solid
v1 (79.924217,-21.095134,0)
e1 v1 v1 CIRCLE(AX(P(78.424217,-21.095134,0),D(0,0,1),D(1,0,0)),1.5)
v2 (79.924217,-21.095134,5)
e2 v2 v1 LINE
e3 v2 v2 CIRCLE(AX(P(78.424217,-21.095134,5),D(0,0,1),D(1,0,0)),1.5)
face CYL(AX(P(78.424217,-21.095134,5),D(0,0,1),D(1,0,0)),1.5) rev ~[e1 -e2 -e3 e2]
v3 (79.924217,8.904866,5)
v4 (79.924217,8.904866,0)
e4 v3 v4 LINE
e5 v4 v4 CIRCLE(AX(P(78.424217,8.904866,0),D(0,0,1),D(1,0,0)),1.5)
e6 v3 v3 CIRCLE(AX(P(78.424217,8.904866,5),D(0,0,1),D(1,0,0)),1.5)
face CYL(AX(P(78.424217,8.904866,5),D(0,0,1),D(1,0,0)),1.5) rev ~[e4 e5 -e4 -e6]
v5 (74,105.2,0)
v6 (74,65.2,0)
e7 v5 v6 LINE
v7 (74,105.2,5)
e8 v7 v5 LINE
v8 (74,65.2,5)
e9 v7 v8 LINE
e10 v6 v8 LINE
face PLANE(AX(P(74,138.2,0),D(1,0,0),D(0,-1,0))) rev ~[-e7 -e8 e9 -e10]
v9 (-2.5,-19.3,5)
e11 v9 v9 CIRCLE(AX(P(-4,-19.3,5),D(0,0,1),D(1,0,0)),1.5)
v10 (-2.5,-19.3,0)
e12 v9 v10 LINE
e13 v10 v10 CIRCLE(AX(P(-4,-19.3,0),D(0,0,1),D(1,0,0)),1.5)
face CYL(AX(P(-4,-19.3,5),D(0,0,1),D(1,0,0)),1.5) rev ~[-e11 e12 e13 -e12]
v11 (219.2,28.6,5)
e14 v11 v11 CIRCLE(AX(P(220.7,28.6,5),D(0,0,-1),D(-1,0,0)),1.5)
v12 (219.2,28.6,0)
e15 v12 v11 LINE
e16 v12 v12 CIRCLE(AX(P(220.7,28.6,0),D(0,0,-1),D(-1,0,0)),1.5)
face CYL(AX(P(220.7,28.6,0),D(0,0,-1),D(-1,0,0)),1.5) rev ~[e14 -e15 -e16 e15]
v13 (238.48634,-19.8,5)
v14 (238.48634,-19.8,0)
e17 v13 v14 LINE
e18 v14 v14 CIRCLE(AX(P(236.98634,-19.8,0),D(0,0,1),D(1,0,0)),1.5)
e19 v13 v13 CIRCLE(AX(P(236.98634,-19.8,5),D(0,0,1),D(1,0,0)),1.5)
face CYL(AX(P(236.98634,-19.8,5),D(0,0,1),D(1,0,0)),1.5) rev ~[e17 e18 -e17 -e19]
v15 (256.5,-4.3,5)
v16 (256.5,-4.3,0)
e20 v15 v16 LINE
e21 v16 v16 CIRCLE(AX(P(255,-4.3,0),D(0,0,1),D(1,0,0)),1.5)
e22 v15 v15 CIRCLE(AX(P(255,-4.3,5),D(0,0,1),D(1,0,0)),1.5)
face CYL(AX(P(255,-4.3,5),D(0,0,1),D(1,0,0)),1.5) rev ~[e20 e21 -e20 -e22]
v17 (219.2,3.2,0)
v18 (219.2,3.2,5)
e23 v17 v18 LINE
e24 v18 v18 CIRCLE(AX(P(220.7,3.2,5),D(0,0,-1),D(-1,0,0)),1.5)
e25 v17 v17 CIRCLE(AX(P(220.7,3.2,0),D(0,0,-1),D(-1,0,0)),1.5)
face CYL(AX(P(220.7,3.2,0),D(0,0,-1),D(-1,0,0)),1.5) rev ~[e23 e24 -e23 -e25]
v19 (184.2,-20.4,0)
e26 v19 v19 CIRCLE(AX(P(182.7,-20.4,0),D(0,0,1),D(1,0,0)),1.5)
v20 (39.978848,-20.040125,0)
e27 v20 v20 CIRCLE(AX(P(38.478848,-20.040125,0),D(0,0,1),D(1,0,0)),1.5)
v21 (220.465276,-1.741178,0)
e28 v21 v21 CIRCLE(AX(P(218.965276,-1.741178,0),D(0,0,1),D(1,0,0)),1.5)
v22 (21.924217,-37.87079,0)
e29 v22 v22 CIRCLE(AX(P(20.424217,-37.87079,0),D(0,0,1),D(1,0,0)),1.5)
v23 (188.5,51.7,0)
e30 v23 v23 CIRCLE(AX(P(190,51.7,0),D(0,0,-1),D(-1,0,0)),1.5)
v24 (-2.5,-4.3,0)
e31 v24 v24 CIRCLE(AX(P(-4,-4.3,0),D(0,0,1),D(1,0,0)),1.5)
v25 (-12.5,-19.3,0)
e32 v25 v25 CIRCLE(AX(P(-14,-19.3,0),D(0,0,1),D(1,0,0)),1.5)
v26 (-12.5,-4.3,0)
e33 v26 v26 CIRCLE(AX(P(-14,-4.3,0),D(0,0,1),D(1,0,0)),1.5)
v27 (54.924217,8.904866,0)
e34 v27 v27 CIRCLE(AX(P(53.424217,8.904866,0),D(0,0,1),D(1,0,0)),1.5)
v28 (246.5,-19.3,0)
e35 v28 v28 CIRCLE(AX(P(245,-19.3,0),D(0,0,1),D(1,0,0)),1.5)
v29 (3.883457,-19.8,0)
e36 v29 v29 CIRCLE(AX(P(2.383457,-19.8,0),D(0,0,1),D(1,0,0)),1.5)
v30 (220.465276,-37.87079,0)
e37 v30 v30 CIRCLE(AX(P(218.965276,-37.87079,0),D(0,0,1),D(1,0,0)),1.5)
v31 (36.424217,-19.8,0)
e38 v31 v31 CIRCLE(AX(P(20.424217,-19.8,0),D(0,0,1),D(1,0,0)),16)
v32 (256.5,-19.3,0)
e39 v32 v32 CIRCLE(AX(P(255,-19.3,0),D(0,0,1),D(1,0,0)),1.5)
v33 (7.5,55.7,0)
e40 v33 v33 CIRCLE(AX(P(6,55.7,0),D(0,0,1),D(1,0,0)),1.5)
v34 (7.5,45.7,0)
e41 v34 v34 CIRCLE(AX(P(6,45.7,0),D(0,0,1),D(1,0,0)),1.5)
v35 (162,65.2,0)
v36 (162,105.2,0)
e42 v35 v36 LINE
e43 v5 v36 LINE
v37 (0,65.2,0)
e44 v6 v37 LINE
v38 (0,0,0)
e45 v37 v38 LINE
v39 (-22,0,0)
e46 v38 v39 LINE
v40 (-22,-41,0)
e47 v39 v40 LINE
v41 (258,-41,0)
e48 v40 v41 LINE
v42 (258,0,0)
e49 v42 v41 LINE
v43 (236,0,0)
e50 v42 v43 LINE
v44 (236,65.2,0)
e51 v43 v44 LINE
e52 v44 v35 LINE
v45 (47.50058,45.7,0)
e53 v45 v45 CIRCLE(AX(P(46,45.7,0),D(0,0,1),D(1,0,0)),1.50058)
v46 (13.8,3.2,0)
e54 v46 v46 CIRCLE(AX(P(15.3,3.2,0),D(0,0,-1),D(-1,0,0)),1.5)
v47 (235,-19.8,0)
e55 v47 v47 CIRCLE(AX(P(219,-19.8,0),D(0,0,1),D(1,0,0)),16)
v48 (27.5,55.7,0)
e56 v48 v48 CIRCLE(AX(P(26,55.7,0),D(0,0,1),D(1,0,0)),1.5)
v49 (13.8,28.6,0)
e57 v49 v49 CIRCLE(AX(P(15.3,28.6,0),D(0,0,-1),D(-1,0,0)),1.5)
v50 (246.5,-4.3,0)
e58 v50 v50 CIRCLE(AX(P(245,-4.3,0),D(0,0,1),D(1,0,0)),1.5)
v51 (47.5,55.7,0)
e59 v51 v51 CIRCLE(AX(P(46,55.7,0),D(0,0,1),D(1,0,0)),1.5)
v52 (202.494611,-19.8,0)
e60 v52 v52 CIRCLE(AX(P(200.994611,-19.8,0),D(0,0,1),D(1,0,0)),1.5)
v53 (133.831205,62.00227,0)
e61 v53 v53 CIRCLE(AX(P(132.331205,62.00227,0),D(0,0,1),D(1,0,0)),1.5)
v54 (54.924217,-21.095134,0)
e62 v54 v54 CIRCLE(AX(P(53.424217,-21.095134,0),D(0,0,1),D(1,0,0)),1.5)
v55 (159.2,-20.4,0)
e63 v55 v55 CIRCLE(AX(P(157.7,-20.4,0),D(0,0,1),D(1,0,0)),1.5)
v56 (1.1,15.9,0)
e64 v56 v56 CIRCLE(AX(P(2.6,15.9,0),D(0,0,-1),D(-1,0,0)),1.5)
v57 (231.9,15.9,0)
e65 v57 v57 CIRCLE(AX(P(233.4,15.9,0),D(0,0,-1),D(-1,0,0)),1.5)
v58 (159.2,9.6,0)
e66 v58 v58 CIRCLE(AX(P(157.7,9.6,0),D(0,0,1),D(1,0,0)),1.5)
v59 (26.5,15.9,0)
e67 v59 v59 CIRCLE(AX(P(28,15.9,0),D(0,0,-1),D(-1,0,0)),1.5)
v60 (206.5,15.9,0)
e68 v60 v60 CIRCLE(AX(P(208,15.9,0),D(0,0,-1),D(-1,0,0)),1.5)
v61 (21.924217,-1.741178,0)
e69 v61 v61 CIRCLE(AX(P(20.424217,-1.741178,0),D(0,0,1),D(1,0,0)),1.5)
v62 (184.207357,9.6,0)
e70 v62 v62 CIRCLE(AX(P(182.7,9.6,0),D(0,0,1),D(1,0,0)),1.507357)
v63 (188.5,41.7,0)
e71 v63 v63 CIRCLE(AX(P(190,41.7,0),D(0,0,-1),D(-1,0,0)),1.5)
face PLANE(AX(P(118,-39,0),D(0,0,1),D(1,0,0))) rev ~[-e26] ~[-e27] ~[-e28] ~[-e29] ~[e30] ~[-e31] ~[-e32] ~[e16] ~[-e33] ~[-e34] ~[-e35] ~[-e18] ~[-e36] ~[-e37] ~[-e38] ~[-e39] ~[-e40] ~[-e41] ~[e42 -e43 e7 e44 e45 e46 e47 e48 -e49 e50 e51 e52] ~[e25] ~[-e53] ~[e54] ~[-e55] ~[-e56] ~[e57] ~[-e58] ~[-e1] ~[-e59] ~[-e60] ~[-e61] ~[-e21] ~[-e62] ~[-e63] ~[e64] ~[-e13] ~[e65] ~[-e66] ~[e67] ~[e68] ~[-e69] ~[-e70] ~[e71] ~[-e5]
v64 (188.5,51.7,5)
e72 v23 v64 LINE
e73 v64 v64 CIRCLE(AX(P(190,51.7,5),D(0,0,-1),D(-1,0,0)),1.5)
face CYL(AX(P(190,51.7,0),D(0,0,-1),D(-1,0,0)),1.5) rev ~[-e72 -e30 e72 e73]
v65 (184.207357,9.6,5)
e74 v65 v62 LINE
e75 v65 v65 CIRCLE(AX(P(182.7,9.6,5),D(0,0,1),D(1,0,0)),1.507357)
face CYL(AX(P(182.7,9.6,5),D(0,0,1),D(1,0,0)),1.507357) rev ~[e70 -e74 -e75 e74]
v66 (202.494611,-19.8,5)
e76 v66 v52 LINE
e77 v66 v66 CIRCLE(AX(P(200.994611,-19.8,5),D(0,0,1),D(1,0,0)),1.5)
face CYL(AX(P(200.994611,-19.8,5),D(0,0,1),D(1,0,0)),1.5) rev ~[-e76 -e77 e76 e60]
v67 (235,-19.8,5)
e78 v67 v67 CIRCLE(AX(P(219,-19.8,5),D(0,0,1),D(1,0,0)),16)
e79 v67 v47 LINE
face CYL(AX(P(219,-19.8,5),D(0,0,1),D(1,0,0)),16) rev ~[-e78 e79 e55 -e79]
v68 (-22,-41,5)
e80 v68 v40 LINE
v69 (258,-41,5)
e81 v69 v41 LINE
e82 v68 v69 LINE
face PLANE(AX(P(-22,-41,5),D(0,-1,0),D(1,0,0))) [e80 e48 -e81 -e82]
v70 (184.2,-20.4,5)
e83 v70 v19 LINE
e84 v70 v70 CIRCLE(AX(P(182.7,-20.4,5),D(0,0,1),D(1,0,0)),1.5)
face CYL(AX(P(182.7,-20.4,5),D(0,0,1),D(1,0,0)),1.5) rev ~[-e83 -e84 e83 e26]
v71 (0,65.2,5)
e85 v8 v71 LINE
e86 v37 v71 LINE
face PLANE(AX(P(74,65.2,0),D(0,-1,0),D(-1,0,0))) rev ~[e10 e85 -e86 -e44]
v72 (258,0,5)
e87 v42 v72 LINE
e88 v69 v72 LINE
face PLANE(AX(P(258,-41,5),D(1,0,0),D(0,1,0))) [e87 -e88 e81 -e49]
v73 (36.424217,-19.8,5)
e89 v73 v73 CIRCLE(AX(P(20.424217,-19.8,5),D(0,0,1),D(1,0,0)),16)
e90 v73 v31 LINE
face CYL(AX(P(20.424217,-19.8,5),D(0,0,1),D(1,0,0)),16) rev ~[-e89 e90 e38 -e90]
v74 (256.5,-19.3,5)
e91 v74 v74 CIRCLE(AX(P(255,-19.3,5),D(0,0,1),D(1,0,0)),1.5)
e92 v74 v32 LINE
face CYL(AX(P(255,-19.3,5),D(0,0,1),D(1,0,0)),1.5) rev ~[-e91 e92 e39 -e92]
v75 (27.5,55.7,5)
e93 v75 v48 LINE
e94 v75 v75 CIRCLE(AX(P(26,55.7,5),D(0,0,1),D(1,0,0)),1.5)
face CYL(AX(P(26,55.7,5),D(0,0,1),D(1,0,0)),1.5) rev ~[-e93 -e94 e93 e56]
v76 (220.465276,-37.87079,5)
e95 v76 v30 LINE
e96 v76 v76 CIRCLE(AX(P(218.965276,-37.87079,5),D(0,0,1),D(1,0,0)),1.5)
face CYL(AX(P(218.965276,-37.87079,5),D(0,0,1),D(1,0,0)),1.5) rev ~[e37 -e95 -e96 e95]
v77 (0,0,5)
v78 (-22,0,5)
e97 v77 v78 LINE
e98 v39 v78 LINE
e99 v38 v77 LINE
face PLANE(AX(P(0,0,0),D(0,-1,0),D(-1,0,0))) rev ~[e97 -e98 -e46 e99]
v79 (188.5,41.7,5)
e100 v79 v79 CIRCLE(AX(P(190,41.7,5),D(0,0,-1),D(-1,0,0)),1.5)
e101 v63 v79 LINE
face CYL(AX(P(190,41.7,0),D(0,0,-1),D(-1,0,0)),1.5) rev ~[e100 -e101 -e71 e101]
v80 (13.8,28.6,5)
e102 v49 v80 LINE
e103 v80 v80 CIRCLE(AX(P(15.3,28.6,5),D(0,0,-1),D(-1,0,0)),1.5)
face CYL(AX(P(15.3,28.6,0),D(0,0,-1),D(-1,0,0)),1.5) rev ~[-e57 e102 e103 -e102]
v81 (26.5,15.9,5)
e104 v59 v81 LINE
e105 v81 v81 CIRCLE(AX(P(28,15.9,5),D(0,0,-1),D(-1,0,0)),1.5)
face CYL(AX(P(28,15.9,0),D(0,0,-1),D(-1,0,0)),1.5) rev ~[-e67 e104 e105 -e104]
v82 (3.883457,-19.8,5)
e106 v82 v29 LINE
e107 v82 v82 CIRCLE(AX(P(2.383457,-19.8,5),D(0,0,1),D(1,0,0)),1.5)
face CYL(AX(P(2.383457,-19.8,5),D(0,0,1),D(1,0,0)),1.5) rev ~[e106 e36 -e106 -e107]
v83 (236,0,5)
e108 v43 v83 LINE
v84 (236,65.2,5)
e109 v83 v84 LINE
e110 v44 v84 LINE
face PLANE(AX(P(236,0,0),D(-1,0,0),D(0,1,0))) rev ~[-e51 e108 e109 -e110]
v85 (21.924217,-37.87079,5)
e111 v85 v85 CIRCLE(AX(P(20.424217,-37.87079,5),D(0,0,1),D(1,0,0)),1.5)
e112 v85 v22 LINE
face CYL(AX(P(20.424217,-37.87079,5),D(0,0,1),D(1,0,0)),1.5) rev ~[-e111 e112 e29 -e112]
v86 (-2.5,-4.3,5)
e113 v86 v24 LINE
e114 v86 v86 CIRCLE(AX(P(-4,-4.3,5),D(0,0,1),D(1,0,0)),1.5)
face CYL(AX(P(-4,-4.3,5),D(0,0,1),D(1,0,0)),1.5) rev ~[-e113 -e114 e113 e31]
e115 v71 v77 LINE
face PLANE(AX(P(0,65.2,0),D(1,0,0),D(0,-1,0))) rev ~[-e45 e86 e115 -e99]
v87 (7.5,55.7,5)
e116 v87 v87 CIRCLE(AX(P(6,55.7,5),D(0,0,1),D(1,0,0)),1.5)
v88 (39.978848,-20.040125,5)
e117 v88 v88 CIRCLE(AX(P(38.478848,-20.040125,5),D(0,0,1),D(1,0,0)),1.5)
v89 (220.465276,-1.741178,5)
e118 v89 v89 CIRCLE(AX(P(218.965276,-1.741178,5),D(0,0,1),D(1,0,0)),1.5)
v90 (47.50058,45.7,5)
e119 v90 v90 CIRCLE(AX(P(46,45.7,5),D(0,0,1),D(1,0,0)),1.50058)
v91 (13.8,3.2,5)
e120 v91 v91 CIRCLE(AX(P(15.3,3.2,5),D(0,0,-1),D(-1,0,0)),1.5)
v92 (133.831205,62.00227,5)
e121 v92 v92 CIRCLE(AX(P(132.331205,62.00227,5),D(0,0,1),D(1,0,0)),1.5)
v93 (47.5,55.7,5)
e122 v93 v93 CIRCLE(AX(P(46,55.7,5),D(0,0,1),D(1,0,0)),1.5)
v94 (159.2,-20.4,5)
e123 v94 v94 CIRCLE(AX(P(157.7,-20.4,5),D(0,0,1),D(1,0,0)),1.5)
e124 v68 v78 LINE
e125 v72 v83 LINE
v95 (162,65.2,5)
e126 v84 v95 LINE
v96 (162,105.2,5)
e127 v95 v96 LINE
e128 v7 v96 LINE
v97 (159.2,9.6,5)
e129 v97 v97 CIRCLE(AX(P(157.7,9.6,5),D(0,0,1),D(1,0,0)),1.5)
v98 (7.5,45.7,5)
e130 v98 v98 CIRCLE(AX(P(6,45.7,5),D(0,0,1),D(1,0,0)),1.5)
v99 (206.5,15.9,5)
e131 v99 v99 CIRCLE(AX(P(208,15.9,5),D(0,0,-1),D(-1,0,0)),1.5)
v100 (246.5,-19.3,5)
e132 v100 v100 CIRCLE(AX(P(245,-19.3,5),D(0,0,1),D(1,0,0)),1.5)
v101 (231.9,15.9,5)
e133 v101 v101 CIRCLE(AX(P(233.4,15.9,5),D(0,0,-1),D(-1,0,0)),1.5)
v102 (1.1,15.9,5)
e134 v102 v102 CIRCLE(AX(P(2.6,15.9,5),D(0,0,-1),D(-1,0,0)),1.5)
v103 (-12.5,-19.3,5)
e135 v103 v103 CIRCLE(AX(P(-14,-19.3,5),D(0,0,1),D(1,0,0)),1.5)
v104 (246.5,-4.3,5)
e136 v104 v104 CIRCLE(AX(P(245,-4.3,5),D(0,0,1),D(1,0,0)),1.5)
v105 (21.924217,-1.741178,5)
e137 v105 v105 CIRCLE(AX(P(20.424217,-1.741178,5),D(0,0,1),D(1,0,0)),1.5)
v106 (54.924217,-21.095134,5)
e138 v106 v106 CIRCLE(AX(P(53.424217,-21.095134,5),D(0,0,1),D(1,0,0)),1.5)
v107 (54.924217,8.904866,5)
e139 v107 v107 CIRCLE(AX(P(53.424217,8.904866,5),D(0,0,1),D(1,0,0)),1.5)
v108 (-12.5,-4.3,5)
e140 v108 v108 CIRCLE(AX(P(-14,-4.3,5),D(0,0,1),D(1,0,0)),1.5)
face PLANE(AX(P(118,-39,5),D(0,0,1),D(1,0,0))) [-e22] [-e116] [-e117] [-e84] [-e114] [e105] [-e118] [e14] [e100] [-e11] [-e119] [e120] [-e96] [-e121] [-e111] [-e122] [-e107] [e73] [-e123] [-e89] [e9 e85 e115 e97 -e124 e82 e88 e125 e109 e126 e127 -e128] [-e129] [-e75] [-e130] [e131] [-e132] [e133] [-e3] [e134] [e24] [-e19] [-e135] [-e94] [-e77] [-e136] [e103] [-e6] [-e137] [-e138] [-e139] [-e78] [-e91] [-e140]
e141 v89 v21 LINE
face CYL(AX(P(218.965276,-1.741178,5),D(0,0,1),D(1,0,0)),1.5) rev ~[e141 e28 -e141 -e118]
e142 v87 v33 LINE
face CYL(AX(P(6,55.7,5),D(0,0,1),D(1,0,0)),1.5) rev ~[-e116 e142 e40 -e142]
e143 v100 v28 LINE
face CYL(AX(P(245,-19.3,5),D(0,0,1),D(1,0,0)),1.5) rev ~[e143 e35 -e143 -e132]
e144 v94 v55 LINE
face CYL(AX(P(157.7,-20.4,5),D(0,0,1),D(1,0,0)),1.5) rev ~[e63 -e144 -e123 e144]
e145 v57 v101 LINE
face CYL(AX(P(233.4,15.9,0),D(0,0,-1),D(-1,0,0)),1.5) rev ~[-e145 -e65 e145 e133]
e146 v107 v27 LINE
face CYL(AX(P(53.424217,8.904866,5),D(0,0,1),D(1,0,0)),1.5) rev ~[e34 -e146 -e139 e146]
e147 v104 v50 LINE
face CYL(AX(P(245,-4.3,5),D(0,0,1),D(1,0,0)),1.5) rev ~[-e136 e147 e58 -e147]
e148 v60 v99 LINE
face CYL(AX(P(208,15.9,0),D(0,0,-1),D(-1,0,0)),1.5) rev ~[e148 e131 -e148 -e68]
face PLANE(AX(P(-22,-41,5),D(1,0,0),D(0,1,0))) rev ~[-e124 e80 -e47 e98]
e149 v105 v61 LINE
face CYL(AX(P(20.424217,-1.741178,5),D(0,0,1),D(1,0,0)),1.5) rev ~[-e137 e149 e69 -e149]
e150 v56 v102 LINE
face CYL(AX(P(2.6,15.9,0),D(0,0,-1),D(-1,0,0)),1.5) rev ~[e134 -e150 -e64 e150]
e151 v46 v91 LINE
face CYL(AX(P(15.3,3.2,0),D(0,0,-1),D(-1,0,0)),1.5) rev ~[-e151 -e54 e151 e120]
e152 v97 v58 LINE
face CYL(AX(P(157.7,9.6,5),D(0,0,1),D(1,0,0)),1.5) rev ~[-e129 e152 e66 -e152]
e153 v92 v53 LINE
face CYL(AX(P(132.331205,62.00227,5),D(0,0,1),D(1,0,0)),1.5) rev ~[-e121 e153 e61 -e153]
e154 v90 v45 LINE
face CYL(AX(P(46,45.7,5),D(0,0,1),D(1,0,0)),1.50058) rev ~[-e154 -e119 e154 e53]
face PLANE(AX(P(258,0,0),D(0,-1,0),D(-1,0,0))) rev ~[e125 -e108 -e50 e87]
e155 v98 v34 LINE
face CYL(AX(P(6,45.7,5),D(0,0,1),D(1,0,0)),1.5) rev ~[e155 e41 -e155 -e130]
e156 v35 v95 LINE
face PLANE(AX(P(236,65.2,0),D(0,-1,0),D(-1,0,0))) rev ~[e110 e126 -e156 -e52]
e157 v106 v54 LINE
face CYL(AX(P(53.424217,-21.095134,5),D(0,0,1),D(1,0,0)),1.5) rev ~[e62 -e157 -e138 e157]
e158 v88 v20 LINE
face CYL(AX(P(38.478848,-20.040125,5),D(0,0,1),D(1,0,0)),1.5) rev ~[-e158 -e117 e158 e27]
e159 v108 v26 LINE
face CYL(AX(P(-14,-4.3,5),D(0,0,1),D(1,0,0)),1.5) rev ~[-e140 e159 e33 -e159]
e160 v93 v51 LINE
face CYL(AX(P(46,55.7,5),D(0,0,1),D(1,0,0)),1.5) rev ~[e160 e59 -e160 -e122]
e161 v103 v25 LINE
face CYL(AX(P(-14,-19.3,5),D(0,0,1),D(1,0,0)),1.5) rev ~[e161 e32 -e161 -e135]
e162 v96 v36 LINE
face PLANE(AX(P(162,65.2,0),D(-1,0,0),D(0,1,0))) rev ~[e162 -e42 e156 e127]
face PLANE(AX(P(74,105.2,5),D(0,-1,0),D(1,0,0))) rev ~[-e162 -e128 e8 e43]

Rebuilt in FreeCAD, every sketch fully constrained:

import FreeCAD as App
import Part
import Sketcher


def add_polygon(sketch, points):
    """Adds a closed chain of lines whose ends are joined by coincident constraints."""
    first, n = sketch.GeometryCount, len(points)
    for a, b in zip(points, points[1:] + points[:1]):
        sketch.addGeometry(Part.LineSegment(App.Vector(*a, 0), App.Vector(*b, 0)), False)
    for i in range(n):
        sketch.addConstraint(Sketcher.Constraint("Coincident", first + i, 2, first + (i + 1) % n, 1))

doc = App.newDocument("Part")
params = doc.addObject("Spreadsheet::Sheet", "Params")
for row, (alias, value) in enumerate([
    ("sketch1_width", "280 mm"),
    ("sketch1_width2", "22 mm"),
    ("sketch1_width3", "74 mm"),
    ("sketch1_height", "37 mm"),
    ("sketch1_height2", "73 mm"),
    ("pad1_length", "5 mm"),
    ("sketch2_diameter", "3 mm"),
    ("pocket1_length", "14 mm"),
    ("sketch3_diameter", "3 mm"),
    ("pocket2_length", "32 mm"),
    ("sketch4_diameter", "3 mm"),
    ("sketch6_diameter", "3 mm"),
    ("sketch7_diameter", "3 mm"),
    ("sketch8_width", "88 mm"),
    ("sketch8_height", "33 mm"),
    ("sketch9_diameter", "3 mm"),
    ("sketch10_width", "280 mm"),
    ("sketch10_height", "4 mm"),
    ("pad2_length", "5 mm"),
    ("sketch11_diameter", "32 mm"),
    ("sketch12_diameter", "3 mm"),
], start=1):
    params.set(f"A{row}", alias)
    params.set(f"B{row}", "=" + value)
    params.setAlias(f"B{row}", alias)

body = doc.addObject("PartDesign::Body", "Body")

# Sketch on XY plane
sketch1 = doc.addObject("Sketcher::SketchObject", "Sketch")
body.addObject(sketch1)
sketch1.AttachmentSupport = (doc.XY_Plane, [""])
sketch1.MapMode = "FlatFace"
add_polygon(sketch1, [(-22, -37), (258, -37), (258, 0), (236, 0), (236, 65), (162, 65), (162, 138), (74, 138), (74, 65), (0, 65), (0, 0), (-22, 0)])  # lines 0-11
sketch1.addConstraint(Sketcher.Constraint("Horizontal", 0))
sketch1.addConstraint(Sketcher.Constraint("Vertical", 1))
sketch1.addConstraint(Sketcher.Constraint("Horizontal", 2))
sketch1.addConstraint(Sketcher.Constraint("Vertical", 3))
sketch1.addConstraint(Sketcher.Constraint("Horizontal", 4))
sketch1.addConstraint(Sketcher.Constraint("Vertical", 5))
sketch1.addConstraint(Sketcher.Constraint("Horizontal", 6))
sketch1.addConstraint(Sketcher.Constraint("Vertical", 7))
sketch1.addConstraint(Sketcher.Constraint("Horizontal", 8))
sketch1.addConstraint(Sketcher.Constraint("Vertical", 9))
sketch1.addConstraint(Sketcher.Constraint("Horizontal", 10))
sketch1.addConstraint(Sketcher.Constraint("Vertical", 11))
sketch1.addConstraint(Sketcher.Constraint("Coincident", 9, 2, -1, 1))
sketch1.addConstraint(Sketcher.Constraint("PointOnObject", 1, 2, -1))
sketch1.addConstraint(Sketcher.Constraint("Horizontal", 4, 2, 7, 2))
sketch1.addConstraint(Sketcher.Constraint("Equal", 4, 8))
sketch1.addConstraint(Sketcher.Constraint("Equal", 2, 10))
sketch1.addConstraint(Sketcher.Constraint("DistanceX", 0, 1, 0, 2, 280.0))
sketch1.addConstraint(Sketcher.Constraint("DistanceX", 2, 2, 2, 1, 22.0))
sketch1.addConstraint(Sketcher.Constraint("DistanceX", 4, 2, 4, 1, 74.0))
sketch1.addConstraint(Sketcher.Constraint("DistanceY", 1, 1, 1, 2, 37.0))
sketch1.addConstraint(Sketcher.Constraint("DistanceY", 5, 1, 5, 2, 73.0))
sketch1.addConstraint(Sketcher.Constraint("DistanceY", 3, 1, 3, 2, 65.2))
sketch1.setExpression("Constraints[29]", "Params.sketch1_width")
sketch1.setExpression("Constraints[30]", "Params.sketch1_width2")
sketch1.setExpression("Constraints[31]", "Params.sketch1_width3")
sketch1.setExpression("Constraints[32]", "Params.sketch1_height")
sketch1.setExpression("Constraints[33]", "Params.sketch1_height2")
pad1 = doc.addObject("PartDesign::Pad", "Pad")
body.addObject(pad1)
pad1.Profile = sketch1
pad1.setExpression("Length", "Params.pad1_length")

# Sketch on XY plane
sketch2 = doc.addObject("Sketcher::SketchObject", "Sketch001")
body.addObject(sketch2)
sketch2.AttachmentSupport = (doc.XY_Plane, [""])
sketch2.MapMode = "FlatFace"
sketch2.AttachmentOffset = App.Placement(App.Vector(0, 0, 5), App.Rotation())
sketch2.addGeometry(Part.Circle(App.Vector(26, 55.7, 0), App.Vector(0, 0, 1), 1.5), False)
sketch2.addGeometry(Part.Circle(App.Vector(46, 55.7, 0), App.Vector(0, 0, 1), 1.5), False)
sketch2.addGeometry(Part.Circle(App.Vector(6, 55.7, 0), App.Vector(0, 0, 1), 1.5), False)
sketch2.addGeometry(Part.Circle(App.Vector(6, 45.7, 0), App.Vector(0, 0, 1), 1.5), False)
sketch2.addGeometry(Part.Circle(App.Vector(-4, -4.3, 0), App.Vector(0, 0, 1), 1.5), False)
sketch2.addGeometry(Part.Circle(App.Vector(-14, -4.3, 0), App.Vector(0, 0, 1), 1.5), False)
sketch2.addGeometry(Part.Circle(App.Vector(-4, -19.3, 0), App.Vector(0, 0, 1), 1.5), False)
sketch2.addGeometry(Part.Circle(App.Vector(-14, -19.3, 0), App.Vector(0, 0, 1), 1.5), False)
sketch2.addConstraint(Sketcher.Constraint("Equal", 0, 1))
sketch2.addConstraint(Sketcher.Constraint("Equal", 1, 2))
sketch2.addConstraint(Sketcher.Constraint("Equal", 2, 3))
sketch2.addConstraint(Sketcher.Constraint("Equal", 3, 4))
sketch2.addConstraint(Sketcher.Constraint("Equal", 4, 5))
sketch2.addConstraint(Sketcher.Constraint("Equal", 5, 6))
sketch2.addConstraint(Sketcher.Constraint("Equal", 6, 7))
sketch2.addConstraint(Sketcher.Constraint("Horizontal", 0, 3, 1, 3))
sketch2.addConstraint(Sketcher.Constraint("Horizontal", 1, 3, 2, 3))
sketch2.addConstraint(Sketcher.Constraint("Horizontal", 4, 3, 5, 3))
sketch2.addConstraint(Sketcher.Constraint("Horizontal", 6, 3, 7, 3))
sketch2.addConstraint(Sketcher.Constraint("Vertical", 2, 3, 3, 3))
sketch2.addConstraint(Sketcher.Constraint("Vertical", 4, 3, 6, 3))
sketch2.addConstraint(Sketcher.Constraint("Vertical", 5, 3, 7, 3))
sketch2.addConstraint(Sketcher.Constraint("Diameter", 0, 3.0))
sketch2.addConstraint(Sketcher.Constraint("DistanceX", -1, 1, 0, 3, 26.0))
sketch2.addConstraint(Sketcher.Constraint("DistanceX", -1, 1, 1, 3, 46.0))
sketch2.addConstraint(Sketcher.Constraint("DistanceX", -1, 1, 2, 3, 6.0))
sketch2.addConstraint(Sketcher.Constraint("DistanceX", 4, 3, -1, 1, 4.0))
sketch2.addConstraint(Sketcher.Constraint("DistanceX", 5, 3, -1, 1, 14.0))
sketch2.addConstraint(Sketcher.Constraint("DistanceY", 3, 3, 2, 3, 10.0))
sketch2.addConstraint(Sketcher.Constraint("DistanceY", 4, 3, 3, 3, 50.0))
sketch2.addConstraint(Sketcher.Constraint("DistanceY", 6, 3, 4, 3, 15.0))
sketch2.addConstraint(Sketcher.Constraint("DistanceY", -1, 1, 0, 3, 55.7))
sketch2.setExpression("Constraints[14]", "Params.sketch2_diameter")
pocket1 = doc.addObject("PartDesign::Pocket", "Pocket")
body.addObject(pocket1)
pocket1.Profile = sketch2
pocket1.setExpression("Length", "Params.pocket1_length")

# Sketch on XY plane
sketch3 = doc.addObject("Sketcher::SketchObject", "Sketch002")
body.addObject(sketch3)
sketch3.AttachmentSupport = (doc.XY_Plane, [""])
sketch3.MapMode = "FlatFace"
sketch3.AttachmentOffset = App.Placement(App.Vector(0, 0, 5), App.Rotation())
sketch3.addGeometry(Part.Circle(App.Vector(132.3, 62, 0), App.Vector(0, 0, 1), 1.5), False)
sketch3.addConstraint(Sketcher.Constraint("Diameter", 0, 3.0))
sketch3.addConstraint(Sketcher.Constraint("DistanceY", -1, 1, 0, 3, 62.00227))
sketch3.addConstraint(Sketcher.Constraint("DistanceX", -1, 1, 0, 3, 132.331205))
sketch3.setExpression("Constraints[0]", "Params.sketch3_diameter")
pocket2 = doc.addObject("PartDesign::Pocket", "Pocket001")
body.addObject(pocket2)
pocket2.Profile = sketch3
pocket2.setExpression("Length", "Params.pocket2_length")

# Sketch on XY plane
sketch4 = doc.addObject("Sketcher::SketchObject", "Sketch003")
body.addObject(sketch4)
sketch4.AttachmentSupport = (doc.XY_Plane, [""])
sketch4.MapMode = "FlatFace"
sketch4.addGeometry(Part.Circle(App.Vector(190, 51.7, 0), App.Vector(0, 0, 1), 1.5), False)
sketch4.addGeometry(Part.Circle(App.Vector(190, 41.7, 0), App.Vector(0, 0, 1), 1.5), False)
sketch4.addConstraint(Sketcher.Constraint("Equal", 0, 1))
sketch4.addConstraint(Sketcher.Constraint("Vertical", 0, 3, 1, 3))
sketch4.addConstraint(Sketcher.Constraint("Diameter", 0, 3.0))
sketch4.addConstraint(Sketcher.Constraint("DistanceX", -1, 1, 0, 3, 190.0))
sketch4.addConstraint(Sketcher.Constraint("DistanceY", 1, 3, 0, 3, 10.0))
sketch4.addConstraint(Sketcher.Constraint("DistanceY", -1, 1, 0, 3, 51.7))
sketch4.setExpression("Constraints[2]", "Params.sketch4_diameter")
pocket3 = doc.addObject("PartDesign::Pocket", "Pocket002")
body.addObject(pocket3)
pocket3.Profile = sketch4
pocket3.Type = "ThroughAll"
pocket3.Reversed = True

# Sketch on XY plane
sketch5 = doc.addObject("Sketcher::SketchObject", "Sketch004")
body.addObject(sketch5)
sketch5.AttachmentSupport = (doc.XY_Plane, [""])
sketch5.MapMode = "FlatFace"
sketch5.AttachmentOffset = App.Placement(App.Vector(0, 0, 5), App.Rotation())
sketch5.addGeometry(Part.Circle(App.Vector(46, 45.7, 0), App.Vector(0, 0, 1), 1.5), False)
sketch5.addConstraint(Sketcher.Constraint("DistanceX", -1, 1, 0, 3, 46.0))
sketch5.addConstraint(Sketcher.Constraint("DistanceY", -1, 1, 0, 3, 45.7))
sketch5.addConstraint(Sketcher.Constraint("Diameter", 0, 3.00116))
pocket4 = doc.addObject("PartDesign::Pocket", "Pocket003")
body.addObject(pocket4)
pocket4.Profile = sketch5
pocket4.Type = "ThroughAll"

# Sketch on XY plane
sketch6 = doc.addObject("Sketcher::SketchObject", "Sketch005")
body.addObject(sketch6)
sketch6.AttachmentSupport = (doc.XY_Plane, [""])
sketch6.MapMode = "FlatFace"
sketch6.AttachmentOffset = App.Placement(App.Vector(0, 0, 5), App.Rotation())
sketch6.addGeometry(Part.Circle(App.Vector(245, -4.3, 0), App.Vector(0, 0, 1), 1.5), False)
sketch6.addGeometry(Part.Circle(App.Vector(255, -4.3, 0), App.Vector(0, 0, 1), 1.5), False)
sketch6.addGeometry(Part.Circle(App.Vector(255, -19.3, 0), App.Vector(0, 0, 1), 1.5), False)
sketch6.addGeometry(Part.Circle(App.Vector(245, -19.3, 0), App.Vector(0, 0, 1), 1.5), False)
sketch6.addConstraint(Sketcher.Constraint("Equal", 0, 1))
sketch6.addConstraint(Sketcher.Constraint("Equal", 1, 2))
sketch6.addConstraint(Sketcher.Constraint("Equal", 2, 3))
sketch6.addConstraint(Sketcher.Constraint("Horizontal", 0, 3, 1, 3))
sketch6.addConstraint(Sketcher.Constraint("Horizontal", 2, 3, 3, 3))
sketch6.addConstraint(Sketcher.Constraint("Vertical", 1, 3, 2, 3))
sketch6.addConstraint(Sketcher.Constraint("Vertical", 0, 3, 3, 3))
sketch6.addConstraint(Sketcher.Constraint("Diameter", 0, 3.0))
sketch6.addConstraint(Sketcher.Constraint("DistanceX", -1, 1, 0, 3, 245.0))
sketch6.addConstraint(Sketcher.Constraint("DistanceX", -1, 1, 1, 3, 255.0))
sketch6.addConstraint(Sketcher.Constraint("DistanceY", 2, 3, 1, 3, 15.0))
sketch6.addConstraint(Sketcher.Constraint("DistanceY", 0, 3, -1, 1, 4.3))
sketch6.setExpression("Constraints[7]", "Params.sketch6_diameter")
pocket5 = doc.addObject("PartDesign::Pocket", "Pocket004")
body.addObject(pocket5)
pocket5.Profile = sketch6
pocket5.Type = "ThroughAll"

# Sketch on XY plane
sketch7 = doc.addObject("Sketcher::SketchObject", "Sketch006")
body.addObject(sketch7)
sketch7.AttachmentSupport = (doc.XY_Plane, [""])
sketch7.MapMode = "FlatFace"
sketch7.addGeometry(Part.Circle(App.Vector(15.3, 28.6, 0), App.Vector(0, 0, 1), 1.5), False)
sketch7.addGeometry(Part.Circle(App.Vector(2.6, 15.9, 0), App.Vector(0, 0, 1), 1.5), False)
sketch7.addGeometry(Part.Circle(App.Vector(15.3, 3.2, 0), App.Vector(0, 0, 1), 1.5), False)
sketch7.addGeometry(Part.Circle(App.Vector(28, 15.9, 0), App.Vector(0, 0, 1), 1.5), False)
sketch7.addGeometry(Part.Circle(App.Vector(208, 15.9, 0), App.Vector(0, 0, 1), 1.5), False)
sketch7.addGeometry(Part.Circle(App.Vector(220.7, 3.2, 0), App.Vector(0, 0, 1), 1.5), False)
sketch7.addGeometry(Part.Circle(App.Vector(233.4, 15.9, 0), App.Vector(0, 0, 1), 1.5), False)
sketch7.addGeometry(Part.Circle(App.Vector(220.7, 28.6, 0), App.Vector(0, 0, 1), 1.5), False)
sketch7.addConstraint(Sketcher.Constraint("Equal", 0, 1))
sketch7.addConstraint(Sketcher.Constraint("Equal", 1, 2))
sketch7.addConstraint(Sketcher.Constraint("Equal", 2, 3))
sketch7.addConstraint(Sketcher.Constraint("Equal", 3, 4))
sketch7.addConstraint(Sketcher.Constraint("Equal", 4, 5))
sketch7.addConstraint(Sketcher.Constraint("Equal", 5, 6))
sketch7.addConstraint(Sketcher.Constraint("Equal", 6, 7))
sketch7.addConstraint(Sketcher.Constraint("Horizontal", 1, 3, 3, 3))
sketch7.addConstraint(Sketcher.Constraint("Horizontal", 3, 3, 4, 3))
sketch7.addConstraint(Sketcher.Constraint("Horizontal", 2, 3, 5, 3))
sketch7.addConstraint(Sketcher.Constraint("Horizontal", 4, 3, 6, 3))
sketch7.addConstraint(Sketcher.Constraint("Horizontal", 0, 3, 7, 3))
sketch7.addConstraint(Sketcher.Constraint("Vertical", 0, 3, 2, 3))
sketch7.addConstraint(Sketcher.Constraint("Vertical", 5, 3, 7, 3))
sketch7.addConstraint(Sketcher.Constraint("Diameter", 0, 3.0))
sketch7.addConstraint(Sketcher.Constraint("DistanceX", -1, 1, 3, 3, 28.0))
sketch7.addConstraint(Sketcher.Constraint("DistanceX", -1, 1, 4, 3, 208.0))
sketch7.addConstraint(Sketcher.Constraint("DistanceX", -1, 1, 0, 3, 15.3))
sketch7.addConstraint(Sketcher.Constraint("DistanceY", -1, 1, 0, 3, 28.6))
sketch7.addConstraint(Sketcher.Constraint("DistanceX", -1, 1, 1, 3, 2.6))
sketch7.addConstraint(Sketcher.Constraint("DistanceY", -1, 1, 1, 3, 15.9))
sketch7.addConstraint(Sketcher.Constraint("DistanceY", -1, 1, 2, 3, 3.2))
sketch7.addConstraint(Sketcher.Constraint("DistanceX", -1, 1, 5, 3, 220.7))
sketch7.addConstraint(Sketcher.Constraint("DistanceX", -1, 1, 6, 3, 233.4))
sketch7.setExpression("Constraints[14]", "Params.sketch7_diameter")
pocket6 = doc.addObject("PartDesign::Pocket", "Pocket005")
body.addObject(pocket6)
pocket6.Profile = sketch7
pocket6.Type = "ThroughAll"
pocket6.Reversed = True

# Sketch on XY plane
sketch8 = doc.addObject("Sketcher::SketchObject", "Sketch007")
body.addObject(sketch8)
sketch8.AttachmentSupport = (doc.XY_Plane, [""])
sketch8.MapMode = "FlatFace"
sketch8.AttachmentOffset = App.Placement(App.Vector(0, 0, 5), App.Rotation())
add_polygon(sketch8, [(74, 138), (74, 105), (162, 105), (162, 138)])  # lines 0-3
sketch8.addConstraint(Sketcher.Constraint("Vertical", 0))
sketch8.addConstraint(Sketcher.Constraint("Horizontal", 1))
sketch8.addConstraint(Sketcher.Constraint("Vertical", 2))
sketch8.addConstraint(Sketcher.Constraint("Horizontal", 3))
sketch8.addConstraint(Sketcher.Constraint("DistanceX", 1, 1, 1, 2, 88.0))
sketch8.addConstraint(Sketcher.Constraint("DistanceY", 0, 2, 0, 1, 33.0))
sketch8.addConstraint(Sketcher.Constraint("DistanceX", -1, 1, 0, 2, 74.0))
sketch8.addConstraint(Sketcher.Constraint("DistanceY", -1, 1, 0, 2, 105.2))
sketch8.setExpression("Constraints[8]", "Params.sketch8_width")
sketch8.setExpression("Constraints[9]", "Params.sketch8_height")
pocket7 = doc.addObject("PartDesign::Pocket", "Pocket006")
body.addObject(pocket7)
pocket7.Profile = sketch8
pocket7.Type = "ThroughAll"

# Sketch on XY plane
sketch9 = doc.addObject("Sketcher::SketchObject", "Sketch008")
body.addObject(sketch9)
sketch9.AttachmentSupport = (doc.XY_Plane, [""])
sketch9.MapMode = "FlatFace"
sketch9.AttachmentOffset = App.Placement(App.Vector(0, 0, 5), App.Rotation())
sketch9.addGeometry(Part.Circle(App.Vector(182.7, -20.4, 0), App.Vector(0, 0, 1), 1.5), False)
sketch9.addGeometry(Part.Circle(App.Vector(157.7, -20.4, 0), App.Vector(0, 0, 1), 1.5), False)
sketch9.addGeometry(Part.Circle(App.Vector(157.7, 9.6, 0), App.Vector(0, 0, 1), 1.5), False)
sketch9.addGeometry(Part.Circle(App.Vector(182.7, 9.6, 0), App.Vector(0, 0, 1), 1.5), False)
sketch9.addGeometry(Part.Circle(App.Vector(78.4, -21.1, 0), App.Vector(0, 0, 1), 1.5), False)
sketch9.addGeometry(Part.Circle(App.Vector(53.4, -21.1, 0), App.Vector(0, 0, 1), 1.5), False)
sketch9.addGeometry(Part.Circle(App.Vector(78.4, 8.9, 0), App.Vector(0, 0, 1), 1.5), False)
sketch9.addGeometry(Part.Circle(App.Vector(53.4, 8.9, 0), App.Vector(0, 0, 1), 1.5), False)
sketch9.addConstraint(Sketcher.Constraint("Equal", 0, 1))
sketch9.addConstraint(Sketcher.Constraint("Equal", 1, 2))
sketch9.addConstraint(Sketcher.Constraint("Equal", 2, 4))
sketch9.addConstraint(Sketcher.Constraint("Equal", 4, 5))
sketch9.addConstraint(Sketcher.Constraint("Equal", 5, 6))
sketch9.addConstraint(Sketcher.Constraint("Equal", 6, 7))
sketch9.addConstraint(Sketcher.Constraint("Horizontal", 0, 3, 1, 3))
sketch9.addConstraint(Sketcher.Constraint("Horizontal", 2, 3, 3, 3))
sketch9.addConstraint(Sketcher.Constraint("Horizontal", 4, 3, 5, 3))
sketch9.addConstraint(Sketcher.Constraint("Horizontal", 6, 3, 7, 3))
sketch9.addConstraint(Sketcher.Constraint("Vertical", 1, 3, 2, 3))
sketch9.addConstraint(Sketcher.Constraint("Vertical", 0, 3, 3, 3))
sketch9.addConstraint(Sketcher.Constraint("Vertical", 4, 3, 6, 3))
sketch9.addConstraint(Sketcher.Constraint("Vertical", 5, 3, 7, 3))
sketch9.addConstraint(Sketcher.Constraint("Diameter", 0, 3.0))
sketch9.addConstraint(Sketcher.Constraint("DistanceX", 1, 3, 0, 3, 25.0))
sketch9.addConstraint(Sketcher.Constraint("DistanceY", 1, 3, 2, 3, 30.0))
sketch9.addConstraint(Sketcher.Constraint("DistanceX", 5, 3, 4, 3, 25.0))
sketch9.addConstraint(Sketcher.Constraint("DistanceY", 4, 3, 6, 3, 30.0))
sketch9.addConstraint(Sketcher.Constraint("DistanceX", -1, 1, 0, 3, 182.7))
sketch9.addConstraint(Sketcher.Constraint("DistanceY", 0, 3, -1, 1, 20.4))
sketch9.addConstraint(Sketcher.Constraint("Diameter", 3, 3.014714))
sketch9.addConstraint(Sketcher.Constraint("DistanceX", -1, 1, 4, 3, 78.424217))
sketch9.addConstraint(Sketcher.Constraint("DistanceY", 4, 3, -1, 1, 21.095134))
sketch9.setExpression("Constraints[14]", "Params.sketch9_diameter")
pocket8 = doc.addObject("PartDesign::Pocket", "Pocket007")
body.addObject(pocket8)
pocket8.Profile = sketch9
pocket8.Type = "ThroughAll"

# Sketch on XY plane
sketch10 = doc.addObject("Sketcher::SketchObject", "Sketch009")
body.addObject(sketch10)
sketch10.AttachmentSupport = (doc.XY_Plane, [""])
sketch10.MapMode = "FlatFace"
sketch10.AttachmentOffset = App.Placement(App.Vector(0, 0, 5), App.Rotation())
add_polygon(sketch10, [(-22, -37), (-22, -41), (258, -41), (258, -37)])  # lines 0-3
sketch10.addConstraint(Sketcher.Constraint("Vertical", 0))
sketch10.addConstraint(Sketcher.Constraint("Horizontal", 1))
sketch10.addConstraint(Sketcher.Constraint("Vertical", 2))
sketch10.addConstraint(Sketcher.Constraint("Horizontal", 3))
sketch10.addConstraint(Sketcher.Constraint("DistanceX", 1, 1, 1, 2, 280.0))
sketch10.addConstraint(Sketcher.Constraint("DistanceY", 0, 2, 0, 1, 4.0))
sketch10.addConstraint(Sketcher.Constraint("DistanceX", 0, 2, -1, 1, 22.0))
sketch10.addConstraint(Sketcher.Constraint("DistanceY", 0, 2, -1, 1, 41.0))
sketch10.setExpression("Constraints[8]", "Params.sketch10_width")
sketch10.setExpression("Constraints[9]", "Params.sketch10_height")
pad2 = doc.addObject("PartDesign::Pad", "Pad001")
body.addObject(pad2)
pad2.Profile = sketch10
pad2.setExpression("Length", "Params.pad2_length")
pad2.Reversed = True

# Sketch on XY plane
sketch11 = doc.addObject("Sketcher::SketchObject", "Sketch010")
body.addObject(sketch11)
sketch11.AttachmentSupport = (doc.XY_Plane, [""])
sketch11.MapMode = "FlatFace"
sketch11.AttachmentOffset = App.Placement(App.Vector(0, 0, 5), App.Rotation())
sketch11.addGeometry(Part.Circle(App.Vector(20, -20, 0), App.Vector(0, 0, 1), 16), False)
sketch11.addGeometry(Part.Circle(App.Vector(219, -20, 0), App.Vector(0, 0, 1), 16), False)
sketch11.addConstraint(Sketcher.Constraint("Equal", 0, 1))
sketch11.addConstraint(Sketcher.Constraint("Horizontal", 0, 3, 1, 3))
sketch11.addConstraint(Sketcher.Constraint("Diameter", 0, 32.0))
sketch11.addConstraint(Sketcher.Constraint("DistanceX", -1, 1, 1, 3, 219.0))
sketch11.addConstraint(Sketcher.Constraint("DistanceY", 0, 3, -1, 1, 19.8))
sketch11.addConstraint(Sketcher.Constraint("DistanceX", -1, 1, 0, 3, 20.424217))
sketch11.setExpression("Constraints[2]", "Params.sketch11_diameter")
pocket9 = doc.addObject("PartDesign::Pocket", "Pocket008")
body.addObject(pocket9)
pocket9.Profile = sketch11
pocket9.Type = "ThroughAll"

# Sketch on XY plane
sketch12 = doc.addObject("Sketcher::SketchObject", "Sketch011")
body.addObject(sketch12)
sketch12.AttachmentSupport = (doc.XY_Plane, [""])
sketch12.MapMode = "FlatFace"
sketch12.AttachmentOffset = App.Placement(App.Vector(0, 0, 5), App.Rotation())
sketch12.addGeometry(Part.Circle(App.Vector(2.4, -19.8, 0), App.Vector(0, 0, 1), 1.5), False)
sketch12.addGeometry(Part.Circle(App.Vector(20.4, -1.7, 0), App.Vector(0, 0, 1), 1.5), False)
sketch12.addGeometry(Part.Circle(App.Vector(38.5, -20, 0), App.Vector(0, 0, 1), 1.5), False)
sketch12.addGeometry(Part.Circle(App.Vector(20.4, -37.9, 0), App.Vector(0, 0, 1), 1.5), False)
sketch12.addGeometry(Part.Circle(App.Vector(219, -1.7, 0), App.Vector(0, 0, 1), 1.5), False)
sketch12.addGeometry(Part.Circle(App.Vector(237, -19.8, 0), App.Vector(0, 0, 1), 1.5), False)
sketch12.addGeometry(Part.Circle(App.Vector(201, -19.8, 0), App.Vector(0, 0, 1), 1.5), False)
sketch12.addGeometry(Part.Circle(App.Vector(219, -37.9, 0), App.Vector(0, 0, 1), 1.5), False)
sketch12.addConstraint(Sketcher.Constraint("Equal", 0, 1))
sketch12.addConstraint(Sketcher.Constraint("Equal", 1, 2))
sketch12.addConstraint(Sketcher.Constraint("Equal", 2, 3))
sketch12.addConstraint(Sketcher.Constraint("Equal", 3, 4))
sketch12.addConstraint(Sketcher.Constraint("Equal", 4, 5))
sketch12.addConstraint(Sketcher.Constraint("Equal", 5, 6))
sketch12.addConstraint(Sketcher.Constraint("Equal", 6, 7))
sketch12.addConstraint(Sketcher.Constraint("Horizontal", 1, 3, 4, 3))
sketch12.addConstraint(Sketcher.Constraint("Horizontal", 0, 3, 5, 3))
sketch12.addConstraint(Sketcher.Constraint("Horizontal", 5, 3, 6, 3))
sketch12.addConstraint(Sketcher.Constraint("Horizontal", 3, 3, 7, 3))
sketch12.addConstraint(Sketcher.Constraint("Vertical", 1, 3, 3, 3))
sketch12.addConstraint(Sketcher.Constraint("Vertical", 4, 3, 7, 3))
sketch12.addConstraint(Sketcher.Constraint("Diameter", 0, 3.0))
sketch12.addConstraint(Sketcher.Constraint("DistanceY", 0, 3, -1, 1, 19.8))
sketch12.addConstraint(Sketcher.Constraint("DistanceY", 1, 3, -1, 1, 1.741178))
sketch12.addConstraint(Sketcher.Constraint("DistanceX", -1, 1, 2, 3, 38.478848))
sketch12.addConstraint(Sketcher.Constraint("DistanceY", 3, 3, -1, 1, 37.87079))
sketch12.addConstraint(Sketcher.Constraint("DistanceX", -1, 1, 5, 3, 236.98634))
sketch12.addConstraint(Sketcher.Constraint("DistanceX", -1, 1, 6, 3, 200.994611))
sketch12.addConstraint(Sketcher.Constraint("DistanceX", 0, 3, 1, 3, 18.04076))
sketch12.addConstraint(Sketcher.Constraint("DistanceX", 1, 3, 2, 3, 18.054631))
sketch12.addConstraint(Sketcher.Constraint("DistanceX", 1, 3, 4, 3, 198.541059))
sketch12.addConstraint(Sketcher.Constraint("DistanceY", 2, 3, -1, 1, 20.040125))
sketch12.setExpression("Constraints[13]", "Params.sketch12_diameter")
pocket10 = doc.addObject("PartDesign::Pocket", "Pocket009")
body.addObject(pocket10)
pocket10.Profile = sketch12
pocket10.Type = "ThroughAll"

doc.recompute()
